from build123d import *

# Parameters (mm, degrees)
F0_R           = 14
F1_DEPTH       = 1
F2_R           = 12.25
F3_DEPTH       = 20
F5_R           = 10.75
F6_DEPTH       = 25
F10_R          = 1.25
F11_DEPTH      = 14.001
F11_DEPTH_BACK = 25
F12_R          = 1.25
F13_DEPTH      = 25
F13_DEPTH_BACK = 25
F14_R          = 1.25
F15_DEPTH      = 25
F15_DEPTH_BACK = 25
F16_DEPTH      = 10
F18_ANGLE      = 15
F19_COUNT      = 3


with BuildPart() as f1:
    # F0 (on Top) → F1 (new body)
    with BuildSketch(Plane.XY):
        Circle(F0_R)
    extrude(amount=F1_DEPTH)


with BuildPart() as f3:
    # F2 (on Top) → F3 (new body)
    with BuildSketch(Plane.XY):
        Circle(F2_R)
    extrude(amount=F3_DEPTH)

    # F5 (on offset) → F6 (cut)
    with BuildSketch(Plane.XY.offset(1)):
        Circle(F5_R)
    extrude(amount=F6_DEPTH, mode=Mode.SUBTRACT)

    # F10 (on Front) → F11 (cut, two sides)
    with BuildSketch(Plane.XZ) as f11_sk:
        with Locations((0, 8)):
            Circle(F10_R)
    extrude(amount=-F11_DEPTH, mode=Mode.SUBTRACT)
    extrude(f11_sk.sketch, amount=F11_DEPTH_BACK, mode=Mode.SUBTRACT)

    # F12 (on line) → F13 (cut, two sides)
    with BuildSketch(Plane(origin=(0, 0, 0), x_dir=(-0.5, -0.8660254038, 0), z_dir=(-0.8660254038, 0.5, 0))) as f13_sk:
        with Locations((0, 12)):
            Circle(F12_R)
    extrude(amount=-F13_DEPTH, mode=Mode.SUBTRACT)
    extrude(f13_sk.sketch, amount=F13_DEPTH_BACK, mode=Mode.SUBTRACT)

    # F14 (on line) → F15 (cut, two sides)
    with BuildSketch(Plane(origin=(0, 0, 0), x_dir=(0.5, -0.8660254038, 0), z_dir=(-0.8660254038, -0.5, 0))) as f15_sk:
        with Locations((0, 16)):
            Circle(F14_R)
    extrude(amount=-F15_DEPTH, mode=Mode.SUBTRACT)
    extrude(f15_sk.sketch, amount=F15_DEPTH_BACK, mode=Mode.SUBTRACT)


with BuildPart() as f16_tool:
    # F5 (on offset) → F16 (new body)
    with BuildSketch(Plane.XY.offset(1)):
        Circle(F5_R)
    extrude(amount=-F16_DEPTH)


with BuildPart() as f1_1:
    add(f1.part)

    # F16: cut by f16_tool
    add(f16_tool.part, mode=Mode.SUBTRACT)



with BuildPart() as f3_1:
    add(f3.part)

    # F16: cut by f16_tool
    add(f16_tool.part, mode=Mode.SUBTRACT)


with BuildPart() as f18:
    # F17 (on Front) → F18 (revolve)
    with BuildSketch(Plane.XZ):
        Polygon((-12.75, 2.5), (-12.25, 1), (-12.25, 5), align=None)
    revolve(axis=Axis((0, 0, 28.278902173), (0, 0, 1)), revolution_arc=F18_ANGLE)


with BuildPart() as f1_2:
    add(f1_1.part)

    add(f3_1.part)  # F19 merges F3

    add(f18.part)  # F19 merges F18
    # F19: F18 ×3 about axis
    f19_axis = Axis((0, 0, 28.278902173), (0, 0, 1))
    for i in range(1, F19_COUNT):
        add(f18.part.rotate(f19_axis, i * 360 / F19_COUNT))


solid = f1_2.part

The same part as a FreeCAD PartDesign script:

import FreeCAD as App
import Part
import Sketcher

V = App.Vector


def add_polygon(sketch, points):
    """Adds a closed chain of lines whose ends are joined by coincident constraints."""
    first, n = sketch.GeometryCount, len(points)
    for a, b in zip(points, points[1:] + points[:1]):
        sketch.addGeometry(Part.LineSegment(App.Vector(*a, 0), App.Vector(*b, 0)), False)
    for i in range(n):
        sketch.addConstraint(Sketcher.Constraint("Coincident", first + i, 2, first + (i + 1) % n, 1))

doc = App.newDocument("Part")
body = doc.addObject("PartDesign::Body", "Body")

sketch1 = body.newObject("Sketcher::SketchObject", "Sketch")
sketch1.AttachmentSupport = (doc.getObject("XY_Plane"), [""])
sketch1.MapMode = "FlatFace"
sketch1.addGeometry(Part.Circle(V(0, 0, 0), V(0, 0, 1), 14), False)
sketch1.addConstraint(Sketcher.Constraint("Coincident", 0, 3, -1, 1))
sketch1.addConstraint(Sketcher.Constraint("Diameter", 0, 28.0))
pad1 = body.newObject("PartDesign::Pad", "Pad")
pad1.Profile = sketch1
pad1.Length = 1
body2 = doc.addObject("PartDesign::Body", "Body001")

sketch2 = body2.newObject("Sketcher::SketchObject", "Sketch001")
sketch2.AttachmentSupport = (doc.getObject("XY_Plane001"), [""])
sketch2.MapMode = "FlatFace"
sketch2.addGeometry(Part.Circle(V(0, 0, 0), V(0, 0, 1), 12.25), False)
sketch2.addConstraint(Sketcher.Constraint("Coincident", 0, 3, -1, 1))
sketch2.addConstraint(Sketcher.Constraint("Diameter", 0, 24.5))
pad2 = body2.newObject("PartDesign::Pad", "Pad001")
pad2.Profile = sketch2
pad2.Length = 20

sketch3 = body2.newObject("Sketcher::SketchObject", "Sketch002")
sketch3.AttachmentSupport = (doc.getObject("XY_Plane001"), [""])
sketch3.MapMode = "FlatFace"
sketch3.AttachmentOffset = App.Placement(V(0, 0, 1), App.Rotation())
sketch3.addGeometry(Part.Circle(V(0, 0, 0), V(0, 0, 1), 10.75), False)
sketch3.addConstraint(Sketcher.Constraint("Coincident", 0, 3, -1, 1))
sketch3.addConstraint(Sketcher.Constraint("Diameter", 0, 21.5))
pocket1 = body2.newObject("PartDesign::Pocket", "Pocket")
pocket1.Profile = sketch3
pocket1.Length = 25
pocket1.Reversed = True

sketch4 = body2.newObject("Sketcher::SketchObject", "Sketch003")
sketch4.AttachmentSupport = (doc.getObject("XZ_Plane001"), [""])
sketch4.MapMode = "FlatFace"
sketch4.addGeometry(Part.Circle(V(0, 8, 0), V(0, 0, 1), 1.25), False)
sketch4.addConstraint(Sketcher.Constraint("PointOnObject", 0, 3, -2))
sketch4.addConstraint(Sketcher.Constraint("Diameter", 0, 2.5))
sketch4.addConstraint(Sketcher.Constraint("DistanceY", -1, 1, 0, 3, 8.0))
pocket2 = body2.newObject("PartDesign::Pocket", "Pocket001")
pocket2.Profile = sketch4
pocket2.Type = "ThroughAll"
pocket2.Midplane = True

sketch5 = body2.newObject("Sketcher::SketchObject", "Sketch004")
sketch5.Placement = App.Placement(V(0, 0, 0), App.Rotation(V(-0.5, -0.866025404, 0), V(0, 0, 1), V(-0.866025404, 0.5, 0), "ZXY"))
sketch5.addGeometry(Part.Circle(V(0, 12, 0), V(0, 0, 1), 1.25), False)
sketch5.addConstraint(Sketcher.Constraint("PointOnObject", 0, 3, -2))
sketch5.addConstraint(Sketcher.Constraint("Diameter", 0, 2.5))
sketch5.addConstraint(Sketcher.Constraint("DistanceY", -1, 1, 0, 3, 12.0))
pocket3 = body2.newObject("PartDesign::Pocket", "Pocket002")
pocket3.Profile = sketch5
pocket3.Type = "ThroughAll"
pocket3.Midplane = True

sketch6 = body2.newObject("Sketcher::SketchObject", "Sketch005")
sketch6.Placement = App.Placement(V(0, 0, 0), App.Rotation(V(0.5, -0.866025404, 0), V(0, 0, 1), V(-0.866025404, -0.5, 0), "ZXY"))
sketch6.addGeometry(Part.Circle(V(0, 16, 0), V(0, 0, 1), 1.25), False)
sketch6.addConstraint(Sketcher.Constraint("PointOnObject", 0, 3, -2))
sketch6.addConstraint(Sketcher.Constraint("Diameter", 0, 2.5))
sketch6.addConstraint(Sketcher.Constraint("DistanceY", -1, 1, 0, 3, 16.0))
pocket4 = body2.newObject("PartDesign::Pocket", "Pocket003")
pocket4.Profile = sketch6
pocket4.Type = "ThroughAll"
pocket4.Midplane = True
body3 = doc.addObject("PartDesign::Body", "Body002")

sketch7 = body3.newObject("Sketcher::SketchObject", "Sketch006")
sketch7.AttachmentSupport = (doc.getObject("XY_Plane002"), [""])
sketch7.MapMode = "FlatFace"
sketch7.AttachmentOffset = App.Placement(V(0, 0, 1), App.Rotation())
sketch7.addGeometry(Part.Circle(V(0, 0, 0), V(0, 0, 1), 10.75), False)
sketch7.addConstraint(Sketcher.Constraint("Coincident", 0, 3, -1, 1))
sketch7.addConstraint(Sketcher.Constraint("Diameter", 0, 21.5))
pad3 = body3.newObject("PartDesign::Pad", "Pad002")
pad3.Profile = sketch7
pad3.Length = 10
pad3.Reversed = True
doc.recompute()

body4 = doc.addObject("PartDesign::Body", "Body003")
body4.BaseFeature = body3
boolean = body.newObject("PartDesign::Boolean", "Boolean")
boolean.Type = "Cut"
boolean.addObjects([body4])
doc.recompute()

boolean2 = body2.newObject("PartDesign::Boolean", "Boolean001")
boolean2.Type = "Cut"
boolean2.addObjects([body3])
body5 = doc.addObject("PartDesign::Body", "Body004")

sketch8 = body5.newObject("Sketcher::SketchObject", "Sketch007")
sketch8.AttachmentSupport = (doc.getObject("XZ_Plane004"), [""])
sketch8.MapMode = "FlatFace"
add_polygon(sketch8, [(-12.75, 2.5), (-12.25, 1), (-12.25, 5)])
sketch8.addConstraint(Sketcher.Constraint("Vertical", 1))
sketch8.addConstraint(Sketcher.Constraint("DistanceY", 1, 1, 1, 2, 4.0))
sketch8.addConstraint(Sketcher.Constraint("DistanceY", -1, 1, 0, 2, 1.0))
sketch8.addConstraint(Sketcher.Constraint("DistanceY", -1, 1, 2, 2, 2.5))
sketch8.addConstraint(Sketcher.Constraint("DistanceX", 2, 2, 0, 2, 0.5))
sketch8.addConstraint(Sketcher.Constraint("DistanceX", 0, 2, -1, 1, 12.25))
revolution = body5.newObject("PartDesign::Revolution", "Revolution")
revolution.Profile = sketch8
revolution.ReferenceAxis = (sketch8, ["V_Axis"])
revolution.Angle = 15
doc.recompute()

boolean3 = body.newObject("PartDesign::Boolean", "Boolean002")
boolean3.Type = "Fuse"
boolean3.addObjects([body2])
doc.recompute()

body6 = doc.addObject("PartDesign::Body", "Body005")
body6.BaseFeature = body5
boolean4 = body.newObject("PartDesign::Boolean", "Boolean003")
boolean4.Type = "Fuse"
boolean4.addObjects([body6])
doc.recompute()

body7 = doc.addObject("PartDesign::Body", "Body006")
body7.BaseFeature = body5
body7.Placement = App.Placement(V(0, 0, 0), App.Rotation(V(0, 0, 1), 120))
boolean5 = body.newObject("PartDesign::Boolean", "Boolean004")
boolean5.Type = "Fuse"
boolean5.addObjects([body7])
doc.recompute()

body5.Placement = App.Placement(V(0, 0, 0), App.Rotation(V(0, 0, 1), 240))
boolean6 = body.newObject("PartDesign::Boolean", "Boolean005")
boolean6.Type = "Fuse"
boolean6.addObjects([body5])

doc.recompute()
